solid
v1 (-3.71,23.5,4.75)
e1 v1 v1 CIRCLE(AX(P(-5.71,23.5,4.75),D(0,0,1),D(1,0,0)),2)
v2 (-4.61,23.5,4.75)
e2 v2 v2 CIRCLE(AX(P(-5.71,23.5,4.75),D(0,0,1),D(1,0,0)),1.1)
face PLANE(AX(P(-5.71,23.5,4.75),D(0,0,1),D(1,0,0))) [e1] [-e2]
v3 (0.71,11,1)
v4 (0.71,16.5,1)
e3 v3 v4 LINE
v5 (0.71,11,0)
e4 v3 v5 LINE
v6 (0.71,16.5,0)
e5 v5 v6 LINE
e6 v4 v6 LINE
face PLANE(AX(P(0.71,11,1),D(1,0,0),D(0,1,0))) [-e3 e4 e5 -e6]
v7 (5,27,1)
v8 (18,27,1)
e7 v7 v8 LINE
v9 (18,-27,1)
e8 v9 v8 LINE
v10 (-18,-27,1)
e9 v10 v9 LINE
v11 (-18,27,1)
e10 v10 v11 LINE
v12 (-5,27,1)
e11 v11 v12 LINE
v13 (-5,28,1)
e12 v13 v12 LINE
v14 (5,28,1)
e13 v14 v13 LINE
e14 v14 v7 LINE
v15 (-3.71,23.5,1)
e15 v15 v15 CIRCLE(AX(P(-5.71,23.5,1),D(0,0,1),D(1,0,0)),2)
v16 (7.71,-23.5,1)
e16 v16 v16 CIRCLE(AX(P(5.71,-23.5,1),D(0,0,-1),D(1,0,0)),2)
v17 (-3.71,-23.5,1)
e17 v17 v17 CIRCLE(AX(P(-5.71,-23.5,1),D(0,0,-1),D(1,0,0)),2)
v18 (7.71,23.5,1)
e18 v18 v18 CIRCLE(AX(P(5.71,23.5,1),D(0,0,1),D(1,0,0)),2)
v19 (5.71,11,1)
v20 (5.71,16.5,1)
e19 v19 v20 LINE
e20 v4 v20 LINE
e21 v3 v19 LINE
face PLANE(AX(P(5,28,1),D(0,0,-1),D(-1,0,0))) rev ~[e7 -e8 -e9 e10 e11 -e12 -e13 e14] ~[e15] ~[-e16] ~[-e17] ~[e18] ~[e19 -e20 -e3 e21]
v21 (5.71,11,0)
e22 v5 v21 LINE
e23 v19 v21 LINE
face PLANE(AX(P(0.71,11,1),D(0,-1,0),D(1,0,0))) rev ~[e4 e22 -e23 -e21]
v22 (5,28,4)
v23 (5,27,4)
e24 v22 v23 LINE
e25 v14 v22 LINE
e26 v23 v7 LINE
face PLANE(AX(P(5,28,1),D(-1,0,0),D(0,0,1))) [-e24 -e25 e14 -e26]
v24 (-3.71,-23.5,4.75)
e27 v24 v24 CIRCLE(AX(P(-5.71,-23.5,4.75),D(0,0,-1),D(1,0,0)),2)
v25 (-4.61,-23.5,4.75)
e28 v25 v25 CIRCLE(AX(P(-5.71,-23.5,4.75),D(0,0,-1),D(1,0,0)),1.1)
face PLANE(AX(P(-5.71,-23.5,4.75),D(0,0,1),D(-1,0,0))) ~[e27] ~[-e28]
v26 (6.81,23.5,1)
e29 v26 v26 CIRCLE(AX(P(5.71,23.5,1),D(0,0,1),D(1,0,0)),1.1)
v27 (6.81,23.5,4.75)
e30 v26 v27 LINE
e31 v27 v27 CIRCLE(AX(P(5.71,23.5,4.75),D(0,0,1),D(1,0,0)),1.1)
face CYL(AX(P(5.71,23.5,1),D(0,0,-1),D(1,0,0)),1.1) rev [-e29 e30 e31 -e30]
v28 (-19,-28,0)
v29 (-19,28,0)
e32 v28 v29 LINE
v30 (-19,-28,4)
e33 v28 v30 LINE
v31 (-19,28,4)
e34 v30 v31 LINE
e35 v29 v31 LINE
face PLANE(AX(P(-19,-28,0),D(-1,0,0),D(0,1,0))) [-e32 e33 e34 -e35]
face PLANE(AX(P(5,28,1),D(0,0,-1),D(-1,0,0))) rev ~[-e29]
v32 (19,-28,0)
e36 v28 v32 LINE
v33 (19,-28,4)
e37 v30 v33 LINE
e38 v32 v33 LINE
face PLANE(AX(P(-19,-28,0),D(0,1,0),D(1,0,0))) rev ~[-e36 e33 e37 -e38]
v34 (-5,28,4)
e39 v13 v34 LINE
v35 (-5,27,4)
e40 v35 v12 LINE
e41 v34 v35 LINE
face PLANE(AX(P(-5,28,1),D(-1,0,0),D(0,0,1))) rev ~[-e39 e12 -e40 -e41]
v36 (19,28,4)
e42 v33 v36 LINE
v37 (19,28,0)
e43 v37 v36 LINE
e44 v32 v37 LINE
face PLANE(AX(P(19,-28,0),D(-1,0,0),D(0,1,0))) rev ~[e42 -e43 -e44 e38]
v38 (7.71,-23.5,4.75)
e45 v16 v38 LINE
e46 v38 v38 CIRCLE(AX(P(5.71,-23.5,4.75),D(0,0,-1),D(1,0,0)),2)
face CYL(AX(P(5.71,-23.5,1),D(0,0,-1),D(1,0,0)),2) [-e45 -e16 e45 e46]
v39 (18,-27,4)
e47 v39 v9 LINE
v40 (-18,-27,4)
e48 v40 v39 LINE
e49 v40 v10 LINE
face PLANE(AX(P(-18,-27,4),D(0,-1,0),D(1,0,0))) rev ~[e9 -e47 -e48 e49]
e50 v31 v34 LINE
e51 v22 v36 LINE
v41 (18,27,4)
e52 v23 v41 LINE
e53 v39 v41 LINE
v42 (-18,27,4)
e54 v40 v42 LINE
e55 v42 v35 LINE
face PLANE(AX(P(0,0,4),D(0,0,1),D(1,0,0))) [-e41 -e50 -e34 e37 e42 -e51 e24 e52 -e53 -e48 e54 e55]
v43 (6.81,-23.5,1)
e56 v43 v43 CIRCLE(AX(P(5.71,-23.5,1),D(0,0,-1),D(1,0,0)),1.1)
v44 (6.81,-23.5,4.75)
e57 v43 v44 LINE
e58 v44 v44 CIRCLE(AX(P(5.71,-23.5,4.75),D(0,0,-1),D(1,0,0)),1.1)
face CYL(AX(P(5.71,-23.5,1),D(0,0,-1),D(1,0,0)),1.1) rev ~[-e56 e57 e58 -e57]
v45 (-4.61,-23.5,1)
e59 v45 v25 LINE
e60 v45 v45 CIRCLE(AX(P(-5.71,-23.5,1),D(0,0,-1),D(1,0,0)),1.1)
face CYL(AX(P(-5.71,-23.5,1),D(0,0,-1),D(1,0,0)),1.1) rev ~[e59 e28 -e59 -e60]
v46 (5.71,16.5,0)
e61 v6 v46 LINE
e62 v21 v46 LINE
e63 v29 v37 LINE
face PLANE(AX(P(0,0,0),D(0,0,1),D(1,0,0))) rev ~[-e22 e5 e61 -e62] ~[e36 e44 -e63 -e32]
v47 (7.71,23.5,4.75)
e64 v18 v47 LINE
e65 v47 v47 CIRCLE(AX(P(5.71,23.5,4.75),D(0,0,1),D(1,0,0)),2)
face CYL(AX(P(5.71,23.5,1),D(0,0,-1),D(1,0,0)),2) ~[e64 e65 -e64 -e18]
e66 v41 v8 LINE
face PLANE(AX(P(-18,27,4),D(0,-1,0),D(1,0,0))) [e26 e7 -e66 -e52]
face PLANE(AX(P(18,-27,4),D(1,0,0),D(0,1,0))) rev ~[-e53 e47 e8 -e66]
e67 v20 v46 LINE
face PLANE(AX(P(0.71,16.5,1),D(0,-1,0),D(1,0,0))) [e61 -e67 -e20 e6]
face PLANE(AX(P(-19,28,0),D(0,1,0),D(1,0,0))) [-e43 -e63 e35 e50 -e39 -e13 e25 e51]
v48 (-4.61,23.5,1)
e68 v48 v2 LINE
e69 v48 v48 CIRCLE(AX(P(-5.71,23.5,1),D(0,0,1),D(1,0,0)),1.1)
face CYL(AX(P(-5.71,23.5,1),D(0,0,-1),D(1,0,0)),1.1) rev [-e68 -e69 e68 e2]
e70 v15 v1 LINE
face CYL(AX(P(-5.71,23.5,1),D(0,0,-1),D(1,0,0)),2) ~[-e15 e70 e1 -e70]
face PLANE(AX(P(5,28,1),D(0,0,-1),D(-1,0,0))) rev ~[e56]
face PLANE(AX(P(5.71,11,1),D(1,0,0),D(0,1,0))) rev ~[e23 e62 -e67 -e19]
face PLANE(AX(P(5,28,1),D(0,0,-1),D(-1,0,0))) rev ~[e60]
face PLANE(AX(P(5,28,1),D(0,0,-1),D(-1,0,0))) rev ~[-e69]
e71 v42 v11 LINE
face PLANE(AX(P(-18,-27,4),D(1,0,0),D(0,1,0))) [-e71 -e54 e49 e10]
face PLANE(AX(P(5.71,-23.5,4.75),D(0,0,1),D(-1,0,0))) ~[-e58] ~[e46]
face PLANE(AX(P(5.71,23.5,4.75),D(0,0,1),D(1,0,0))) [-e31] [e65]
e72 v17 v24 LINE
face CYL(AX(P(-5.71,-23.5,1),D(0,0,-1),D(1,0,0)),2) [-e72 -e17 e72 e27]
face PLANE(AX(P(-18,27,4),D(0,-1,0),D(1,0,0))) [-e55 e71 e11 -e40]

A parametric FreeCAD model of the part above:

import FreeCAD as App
import Part
import Sketcher
Q = App.Units.Quantity


def add_polygon(sketch, points):
    """Adds a closed chain of lines whose ends are joined by coincident constraints."""
    first, n = sketch.GeometryCount, len(points)
    for a, b in zip(points, points[1:] + points[:1]):
        sketch.addGeometry(Part.LineSegment(App.Vector(*a, 0), App.Vector(*b, 0)), False)
    for i in range(n):
        sketch.addConstraint(Sketcher.Constraint("Coincident", first + i, 2, first + (i + 1) % n, 1))

doc = App.newDocument("Part")
params = doc.addObject("Spreadsheet::Sheet", "Params")
for row, (alias, value) in enumerate([
    ("sketch1_width", "38 mm"),
    ("sketch1_height", "56 mm"),
    ("pad1_length", "4 mm"),
    ("sketch2_width", "36 mm"),
    ("sketch2_height", "54 mm"),
    ("pocket1_length", "3 mm"),
    ("sketch3_width", "10 mm"),
    ("sketch3_height", "3 mm"),
    ("pocket2_length", "5 mm"),
    ("sketch4_diameter", "4 mm"),
    ("sketch4_diameter2", "2.2 mm"),
    ("pad2_length", "3.75 mm"),
    ("sketch5_width", "5 mm"),
    ("sketch5_height", "5.5 mm"),
    ("pocket3_length", "5 mm"),
], start=1):
    params.set(f"A{row}", alias)
    params.set(f"B{row}", "=" + value)
    params.setAlias(f"B{row}", alias)

body = doc.addObject("PartDesign::Body", "Body")

# Sketch on XY plane
sketch1 = body.newObject("Sketcher::SketchObject", "Sketch")
sketch1.AttachmentSupport = (doc.getObject("XY_Plane"), [""])
sketch1.MapMode = "FlatFace"
add_polygon(sketch1, [(-19, 28), (-19, -28), (19, -28), (19, 28)])  # lines 0-3
sketch1.addConstraint(Sketcher.Constraint("Vertical", 0))
sketch1.addConstraint(Sketcher.Constraint("Horizontal", 1))
sketch1.addConstraint(Sketcher.Constraint("Vertical", 2))
sketch1.addConstraint(Sketcher.Constraint("Horizontal", 3))
sketch1.addConstraint(Sketcher.Constraint("Symmetric", 0, 2, 2, 2, -1, 1))
sketch1.addConstraint(Sketcher.Constraint("DistanceX", 1, 1, 1, 2, Q("38 mm")))
sketch1.addConstraint(Sketcher.Constraint("DistanceY", 0, 2, 0, 1, Q("56 mm")))
sketch1.setExpression("Constraints[9]", "Params.sketch1_width")
sketch1.setExpression("Constraints[10]", "Params.sketch1_height")
pad1 = body.newObject("PartDesign::Pad", "Pad")
pad1.Profile = sketch1
pad1.setExpression("Length", "Params.pad1_length")

# Sketch on XY plane
sketch2 = body.newObject("Sketcher::SketchObject", "Sketch001")
sketch2.AttachmentSupport = (doc.getObject("XY_Plane"), [""])
sketch2.MapMode = "FlatFace"
sketch2.AttachmentOffset = App.Placement(App.Vector(0, 0, 4), App.Rotation())
add_polygon(sketch2, [(-18, 27), (-18, -27), (18, -27), (18, 27)])  # lines 0-3
sketch2.addConstraint(Sketcher.Constraint("Vertical", 0))
sketch2.addConstraint(Sketcher.Constraint("Horizontal", 1))
sketch2.addConstraint(Sketcher.Constraint("Vertical", 2))
sketch2.addConstraint(Sketcher.Constraint("Horizontal", 3))
sketch2.addConstraint(Sketcher.Constraint("Symmetric", 0, 2, 2, 2, -1, 1))
sketch2.addConstraint(Sketcher.Constraint("DistanceX", 1, 1, 1, 2, Q("36 mm")))
sketch2.addConstraint(Sketcher.Constraint("DistanceY", 0, 2, 0, 1, Q("54 mm")))
sketch2.setExpression("Constraints[9]", "Params.sketch2_width")
sketch2.setExpression("Constraints[10]", "Params.sketch2_height")
pocket1 = body.newObject("PartDesign::Pocket", "Pocket")
pocket1.Profile = sketch2
pocket1.setExpression("Length", "Params.pocket1_length")

# Sketch on XZ plane
sketch3 = body.newObject("Sketcher::SketchObject", "Sketch002")
sketch3.AttachmentSupport = (doc.getObject("XZ_Plane"), [""])
sketch3.MapMode = "FlatFace"
sketch3.AttachmentOffset = App.Placement(App.Vector(0, 0, -28), App.Rotation())
add_polygon(sketch3, [(5, 4), (5, 1), (-5, 1), (-5, 4)])  # lines 0-3
sketch3.addConstraint(Sketcher.Constraint("Vertical", 0))
sketch3.addConstraint(Sketcher.Constraint("Horizontal", 1))
sketch3.addConstraint(Sketcher.Constraint("Vertical", 2))
sketch3.addConstraint(Sketcher.Constraint("Horizontal", 3))
sketch3.addConstraint(Sketcher.Constraint("DistanceX", 1, 2, 1, 1, Q("10 mm")))
sketch3.addConstraint(Sketcher.Constraint("DistanceY", 0, 2, 0, 1, Q("3 mm")))
sketch3.addConstraint(Sketcher.Constraint("DistanceX", -1, 1, 0, 2, Q("5 mm")))
sketch3.addConstraint(Sketcher.Constraint("DistanceY", -1, 1, 0, 2, Q("1 mm")))
sketch3.setExpression("Constraints[8]", "Params.sketch3_width")
sketch3.setExpression("Constraints[9]", "Params.sketch3_height")
pocket2 = body.newObject("PartDesign::Pocket", "Pocket001")
pocket2.Profile = sketch3
pocket2.setExpression("Length", "Params.pocket2_length")
pocket2.Reversed = True

# Sketch on XY plane
sketch4 = body.newObject("Sketcher::SketchObject", "Sketch003")
sketch4.AttachmentSupport = (doc.getObject("XY_Plane"), [""])
sketch4.MapMode = "FlatFace"
sketch4.AttachmentOffset = App.Placement(App.Vector(0, 0, 1), App.Rotation())
sketch4.addGeometry(Part.Circle(App.Vector(-5.71, 23.5, 0), App.Vector(0, 0, 1), 2), False)
sketch4.addGeometry(Part.Circle(App.Vector(-5.71, 23.5, 0), App.Vector(0, 0, 1), 1.1), False)
sketch4.addGeometry(Part.Circle(App.Vector(5.71, 23.5, 0), App.Vector(0, 0, 1), 2), False)
sketch4.addGeometry(Part.Circle(App.Vector(5.71, 23.5, 0), App.Vector(0, 0, 1), 1.1), False)
sketch4.addConstraint(Sketcher.Constraint("Coincident", 1, 3, 0, 3))
sketch4.addConstraint(Sketcher.Constraint("Coincident", 3, 3, 2, 3))
sketch4.addConstraint(Sketcher.Constraint("Equal", 0, 2))
sketch4.addConstraint(Sketcher.Constraint("Equal", 1, 3))
sketch4.addConstraint(Sketcher.Constraint("Symmetric", 0, 3, 2, 3, -2))
sketch4.addConstraint(Sketcher.Constraint("Diameter", 0, Q("4 mm")))
sketch4.addConstraint(Sketcher.Constraint("Diameter", 1, Q("2.2 mm")))
sketch4.addConstraint(Sketcher.Constraint("DistanceY", -1, 1, 0, 3, Q("23.5 mm")))
sketch4.addConstraint(Sketcher.Constraint("DistanceX", 0, 3, -1, 1, Q("5.71 mm")))
sketch4.setExpression("Constraints[5]", "Params.sketch4_diameter")
sketch4.setExpression("Constraints[6]", "Params.sketch4_diameter2")
pad2 = body.newObject("PartDesign::Pad", "Pad001")
pad2.Profile = sketch4
pad2.setExpression("Length", "Params.pad2_length")
doc.recompute()

mirrored = body.newObject("PartDesign::Mirrored", "Mirrored")
mirrored.Originals = [pad2]
mirrored.MirrorPlane = (doc.getObject("XZ_Plane"), [""])
body.Tip = mirrored

# Sketch on XY plane
sketch5 = body.newObject("Sketcher::SketchObject", "Sketch004")
sketch5.AttachmentSupport = (doc.getObject("XY_Plane"), [""])
sketch5.MapMode = "FlatFace"
sketch5.AttachmentOffset = App.Placement(App.Vector(0, 0, 1), App.Rotation())
add_polygon(sketch5, [(0.71, 16.5), (0.71, 11), (5.71, 11), (5.71, 16.5)])  # lines 0-3
sketch5.addConstraint(Sketcher.Constraint("Vertical", 0))
sketch5.addConstraint(Sketcher.Constraint("Horizontal", 1))
sketch5.addConstraint(Sketcher.Constraint("Vertical", 2))
sketch5.addConstraint(Sketcher.Constraint("Horizontal", 3))
sketch5.addConstraint(Sketcher.Constraint("DistanceX", 1, 1, 1, 2, Q("5 mm")))
sketch5.addConstraint(Sketcher.Constraint("DistanceY", 0, 2, 0, 1, Q("5.5 mm")))
sketch5.addConstraint(Sketcher.Constraint("DistanceY", -1, 1, 0, 2, Q("11 mm")))
sketch5.addConstraint(Sketcher.Constraint("DistanceX", -1, 1, 0, 2, Q("0.71 mm")))
sketch5.setExpression("Constraints[8]", "Params.sketch5_width")
sketch5.setExpression("Constraints[9]", "Params.sketch5_height")
pocket3 = body.newObject("PartDesign::Pocket", "Pocket002")
pocket3.Profile = sketch5
pocket3.setExpression("Length", "Params.pocket3_length")

doc.recompute()
